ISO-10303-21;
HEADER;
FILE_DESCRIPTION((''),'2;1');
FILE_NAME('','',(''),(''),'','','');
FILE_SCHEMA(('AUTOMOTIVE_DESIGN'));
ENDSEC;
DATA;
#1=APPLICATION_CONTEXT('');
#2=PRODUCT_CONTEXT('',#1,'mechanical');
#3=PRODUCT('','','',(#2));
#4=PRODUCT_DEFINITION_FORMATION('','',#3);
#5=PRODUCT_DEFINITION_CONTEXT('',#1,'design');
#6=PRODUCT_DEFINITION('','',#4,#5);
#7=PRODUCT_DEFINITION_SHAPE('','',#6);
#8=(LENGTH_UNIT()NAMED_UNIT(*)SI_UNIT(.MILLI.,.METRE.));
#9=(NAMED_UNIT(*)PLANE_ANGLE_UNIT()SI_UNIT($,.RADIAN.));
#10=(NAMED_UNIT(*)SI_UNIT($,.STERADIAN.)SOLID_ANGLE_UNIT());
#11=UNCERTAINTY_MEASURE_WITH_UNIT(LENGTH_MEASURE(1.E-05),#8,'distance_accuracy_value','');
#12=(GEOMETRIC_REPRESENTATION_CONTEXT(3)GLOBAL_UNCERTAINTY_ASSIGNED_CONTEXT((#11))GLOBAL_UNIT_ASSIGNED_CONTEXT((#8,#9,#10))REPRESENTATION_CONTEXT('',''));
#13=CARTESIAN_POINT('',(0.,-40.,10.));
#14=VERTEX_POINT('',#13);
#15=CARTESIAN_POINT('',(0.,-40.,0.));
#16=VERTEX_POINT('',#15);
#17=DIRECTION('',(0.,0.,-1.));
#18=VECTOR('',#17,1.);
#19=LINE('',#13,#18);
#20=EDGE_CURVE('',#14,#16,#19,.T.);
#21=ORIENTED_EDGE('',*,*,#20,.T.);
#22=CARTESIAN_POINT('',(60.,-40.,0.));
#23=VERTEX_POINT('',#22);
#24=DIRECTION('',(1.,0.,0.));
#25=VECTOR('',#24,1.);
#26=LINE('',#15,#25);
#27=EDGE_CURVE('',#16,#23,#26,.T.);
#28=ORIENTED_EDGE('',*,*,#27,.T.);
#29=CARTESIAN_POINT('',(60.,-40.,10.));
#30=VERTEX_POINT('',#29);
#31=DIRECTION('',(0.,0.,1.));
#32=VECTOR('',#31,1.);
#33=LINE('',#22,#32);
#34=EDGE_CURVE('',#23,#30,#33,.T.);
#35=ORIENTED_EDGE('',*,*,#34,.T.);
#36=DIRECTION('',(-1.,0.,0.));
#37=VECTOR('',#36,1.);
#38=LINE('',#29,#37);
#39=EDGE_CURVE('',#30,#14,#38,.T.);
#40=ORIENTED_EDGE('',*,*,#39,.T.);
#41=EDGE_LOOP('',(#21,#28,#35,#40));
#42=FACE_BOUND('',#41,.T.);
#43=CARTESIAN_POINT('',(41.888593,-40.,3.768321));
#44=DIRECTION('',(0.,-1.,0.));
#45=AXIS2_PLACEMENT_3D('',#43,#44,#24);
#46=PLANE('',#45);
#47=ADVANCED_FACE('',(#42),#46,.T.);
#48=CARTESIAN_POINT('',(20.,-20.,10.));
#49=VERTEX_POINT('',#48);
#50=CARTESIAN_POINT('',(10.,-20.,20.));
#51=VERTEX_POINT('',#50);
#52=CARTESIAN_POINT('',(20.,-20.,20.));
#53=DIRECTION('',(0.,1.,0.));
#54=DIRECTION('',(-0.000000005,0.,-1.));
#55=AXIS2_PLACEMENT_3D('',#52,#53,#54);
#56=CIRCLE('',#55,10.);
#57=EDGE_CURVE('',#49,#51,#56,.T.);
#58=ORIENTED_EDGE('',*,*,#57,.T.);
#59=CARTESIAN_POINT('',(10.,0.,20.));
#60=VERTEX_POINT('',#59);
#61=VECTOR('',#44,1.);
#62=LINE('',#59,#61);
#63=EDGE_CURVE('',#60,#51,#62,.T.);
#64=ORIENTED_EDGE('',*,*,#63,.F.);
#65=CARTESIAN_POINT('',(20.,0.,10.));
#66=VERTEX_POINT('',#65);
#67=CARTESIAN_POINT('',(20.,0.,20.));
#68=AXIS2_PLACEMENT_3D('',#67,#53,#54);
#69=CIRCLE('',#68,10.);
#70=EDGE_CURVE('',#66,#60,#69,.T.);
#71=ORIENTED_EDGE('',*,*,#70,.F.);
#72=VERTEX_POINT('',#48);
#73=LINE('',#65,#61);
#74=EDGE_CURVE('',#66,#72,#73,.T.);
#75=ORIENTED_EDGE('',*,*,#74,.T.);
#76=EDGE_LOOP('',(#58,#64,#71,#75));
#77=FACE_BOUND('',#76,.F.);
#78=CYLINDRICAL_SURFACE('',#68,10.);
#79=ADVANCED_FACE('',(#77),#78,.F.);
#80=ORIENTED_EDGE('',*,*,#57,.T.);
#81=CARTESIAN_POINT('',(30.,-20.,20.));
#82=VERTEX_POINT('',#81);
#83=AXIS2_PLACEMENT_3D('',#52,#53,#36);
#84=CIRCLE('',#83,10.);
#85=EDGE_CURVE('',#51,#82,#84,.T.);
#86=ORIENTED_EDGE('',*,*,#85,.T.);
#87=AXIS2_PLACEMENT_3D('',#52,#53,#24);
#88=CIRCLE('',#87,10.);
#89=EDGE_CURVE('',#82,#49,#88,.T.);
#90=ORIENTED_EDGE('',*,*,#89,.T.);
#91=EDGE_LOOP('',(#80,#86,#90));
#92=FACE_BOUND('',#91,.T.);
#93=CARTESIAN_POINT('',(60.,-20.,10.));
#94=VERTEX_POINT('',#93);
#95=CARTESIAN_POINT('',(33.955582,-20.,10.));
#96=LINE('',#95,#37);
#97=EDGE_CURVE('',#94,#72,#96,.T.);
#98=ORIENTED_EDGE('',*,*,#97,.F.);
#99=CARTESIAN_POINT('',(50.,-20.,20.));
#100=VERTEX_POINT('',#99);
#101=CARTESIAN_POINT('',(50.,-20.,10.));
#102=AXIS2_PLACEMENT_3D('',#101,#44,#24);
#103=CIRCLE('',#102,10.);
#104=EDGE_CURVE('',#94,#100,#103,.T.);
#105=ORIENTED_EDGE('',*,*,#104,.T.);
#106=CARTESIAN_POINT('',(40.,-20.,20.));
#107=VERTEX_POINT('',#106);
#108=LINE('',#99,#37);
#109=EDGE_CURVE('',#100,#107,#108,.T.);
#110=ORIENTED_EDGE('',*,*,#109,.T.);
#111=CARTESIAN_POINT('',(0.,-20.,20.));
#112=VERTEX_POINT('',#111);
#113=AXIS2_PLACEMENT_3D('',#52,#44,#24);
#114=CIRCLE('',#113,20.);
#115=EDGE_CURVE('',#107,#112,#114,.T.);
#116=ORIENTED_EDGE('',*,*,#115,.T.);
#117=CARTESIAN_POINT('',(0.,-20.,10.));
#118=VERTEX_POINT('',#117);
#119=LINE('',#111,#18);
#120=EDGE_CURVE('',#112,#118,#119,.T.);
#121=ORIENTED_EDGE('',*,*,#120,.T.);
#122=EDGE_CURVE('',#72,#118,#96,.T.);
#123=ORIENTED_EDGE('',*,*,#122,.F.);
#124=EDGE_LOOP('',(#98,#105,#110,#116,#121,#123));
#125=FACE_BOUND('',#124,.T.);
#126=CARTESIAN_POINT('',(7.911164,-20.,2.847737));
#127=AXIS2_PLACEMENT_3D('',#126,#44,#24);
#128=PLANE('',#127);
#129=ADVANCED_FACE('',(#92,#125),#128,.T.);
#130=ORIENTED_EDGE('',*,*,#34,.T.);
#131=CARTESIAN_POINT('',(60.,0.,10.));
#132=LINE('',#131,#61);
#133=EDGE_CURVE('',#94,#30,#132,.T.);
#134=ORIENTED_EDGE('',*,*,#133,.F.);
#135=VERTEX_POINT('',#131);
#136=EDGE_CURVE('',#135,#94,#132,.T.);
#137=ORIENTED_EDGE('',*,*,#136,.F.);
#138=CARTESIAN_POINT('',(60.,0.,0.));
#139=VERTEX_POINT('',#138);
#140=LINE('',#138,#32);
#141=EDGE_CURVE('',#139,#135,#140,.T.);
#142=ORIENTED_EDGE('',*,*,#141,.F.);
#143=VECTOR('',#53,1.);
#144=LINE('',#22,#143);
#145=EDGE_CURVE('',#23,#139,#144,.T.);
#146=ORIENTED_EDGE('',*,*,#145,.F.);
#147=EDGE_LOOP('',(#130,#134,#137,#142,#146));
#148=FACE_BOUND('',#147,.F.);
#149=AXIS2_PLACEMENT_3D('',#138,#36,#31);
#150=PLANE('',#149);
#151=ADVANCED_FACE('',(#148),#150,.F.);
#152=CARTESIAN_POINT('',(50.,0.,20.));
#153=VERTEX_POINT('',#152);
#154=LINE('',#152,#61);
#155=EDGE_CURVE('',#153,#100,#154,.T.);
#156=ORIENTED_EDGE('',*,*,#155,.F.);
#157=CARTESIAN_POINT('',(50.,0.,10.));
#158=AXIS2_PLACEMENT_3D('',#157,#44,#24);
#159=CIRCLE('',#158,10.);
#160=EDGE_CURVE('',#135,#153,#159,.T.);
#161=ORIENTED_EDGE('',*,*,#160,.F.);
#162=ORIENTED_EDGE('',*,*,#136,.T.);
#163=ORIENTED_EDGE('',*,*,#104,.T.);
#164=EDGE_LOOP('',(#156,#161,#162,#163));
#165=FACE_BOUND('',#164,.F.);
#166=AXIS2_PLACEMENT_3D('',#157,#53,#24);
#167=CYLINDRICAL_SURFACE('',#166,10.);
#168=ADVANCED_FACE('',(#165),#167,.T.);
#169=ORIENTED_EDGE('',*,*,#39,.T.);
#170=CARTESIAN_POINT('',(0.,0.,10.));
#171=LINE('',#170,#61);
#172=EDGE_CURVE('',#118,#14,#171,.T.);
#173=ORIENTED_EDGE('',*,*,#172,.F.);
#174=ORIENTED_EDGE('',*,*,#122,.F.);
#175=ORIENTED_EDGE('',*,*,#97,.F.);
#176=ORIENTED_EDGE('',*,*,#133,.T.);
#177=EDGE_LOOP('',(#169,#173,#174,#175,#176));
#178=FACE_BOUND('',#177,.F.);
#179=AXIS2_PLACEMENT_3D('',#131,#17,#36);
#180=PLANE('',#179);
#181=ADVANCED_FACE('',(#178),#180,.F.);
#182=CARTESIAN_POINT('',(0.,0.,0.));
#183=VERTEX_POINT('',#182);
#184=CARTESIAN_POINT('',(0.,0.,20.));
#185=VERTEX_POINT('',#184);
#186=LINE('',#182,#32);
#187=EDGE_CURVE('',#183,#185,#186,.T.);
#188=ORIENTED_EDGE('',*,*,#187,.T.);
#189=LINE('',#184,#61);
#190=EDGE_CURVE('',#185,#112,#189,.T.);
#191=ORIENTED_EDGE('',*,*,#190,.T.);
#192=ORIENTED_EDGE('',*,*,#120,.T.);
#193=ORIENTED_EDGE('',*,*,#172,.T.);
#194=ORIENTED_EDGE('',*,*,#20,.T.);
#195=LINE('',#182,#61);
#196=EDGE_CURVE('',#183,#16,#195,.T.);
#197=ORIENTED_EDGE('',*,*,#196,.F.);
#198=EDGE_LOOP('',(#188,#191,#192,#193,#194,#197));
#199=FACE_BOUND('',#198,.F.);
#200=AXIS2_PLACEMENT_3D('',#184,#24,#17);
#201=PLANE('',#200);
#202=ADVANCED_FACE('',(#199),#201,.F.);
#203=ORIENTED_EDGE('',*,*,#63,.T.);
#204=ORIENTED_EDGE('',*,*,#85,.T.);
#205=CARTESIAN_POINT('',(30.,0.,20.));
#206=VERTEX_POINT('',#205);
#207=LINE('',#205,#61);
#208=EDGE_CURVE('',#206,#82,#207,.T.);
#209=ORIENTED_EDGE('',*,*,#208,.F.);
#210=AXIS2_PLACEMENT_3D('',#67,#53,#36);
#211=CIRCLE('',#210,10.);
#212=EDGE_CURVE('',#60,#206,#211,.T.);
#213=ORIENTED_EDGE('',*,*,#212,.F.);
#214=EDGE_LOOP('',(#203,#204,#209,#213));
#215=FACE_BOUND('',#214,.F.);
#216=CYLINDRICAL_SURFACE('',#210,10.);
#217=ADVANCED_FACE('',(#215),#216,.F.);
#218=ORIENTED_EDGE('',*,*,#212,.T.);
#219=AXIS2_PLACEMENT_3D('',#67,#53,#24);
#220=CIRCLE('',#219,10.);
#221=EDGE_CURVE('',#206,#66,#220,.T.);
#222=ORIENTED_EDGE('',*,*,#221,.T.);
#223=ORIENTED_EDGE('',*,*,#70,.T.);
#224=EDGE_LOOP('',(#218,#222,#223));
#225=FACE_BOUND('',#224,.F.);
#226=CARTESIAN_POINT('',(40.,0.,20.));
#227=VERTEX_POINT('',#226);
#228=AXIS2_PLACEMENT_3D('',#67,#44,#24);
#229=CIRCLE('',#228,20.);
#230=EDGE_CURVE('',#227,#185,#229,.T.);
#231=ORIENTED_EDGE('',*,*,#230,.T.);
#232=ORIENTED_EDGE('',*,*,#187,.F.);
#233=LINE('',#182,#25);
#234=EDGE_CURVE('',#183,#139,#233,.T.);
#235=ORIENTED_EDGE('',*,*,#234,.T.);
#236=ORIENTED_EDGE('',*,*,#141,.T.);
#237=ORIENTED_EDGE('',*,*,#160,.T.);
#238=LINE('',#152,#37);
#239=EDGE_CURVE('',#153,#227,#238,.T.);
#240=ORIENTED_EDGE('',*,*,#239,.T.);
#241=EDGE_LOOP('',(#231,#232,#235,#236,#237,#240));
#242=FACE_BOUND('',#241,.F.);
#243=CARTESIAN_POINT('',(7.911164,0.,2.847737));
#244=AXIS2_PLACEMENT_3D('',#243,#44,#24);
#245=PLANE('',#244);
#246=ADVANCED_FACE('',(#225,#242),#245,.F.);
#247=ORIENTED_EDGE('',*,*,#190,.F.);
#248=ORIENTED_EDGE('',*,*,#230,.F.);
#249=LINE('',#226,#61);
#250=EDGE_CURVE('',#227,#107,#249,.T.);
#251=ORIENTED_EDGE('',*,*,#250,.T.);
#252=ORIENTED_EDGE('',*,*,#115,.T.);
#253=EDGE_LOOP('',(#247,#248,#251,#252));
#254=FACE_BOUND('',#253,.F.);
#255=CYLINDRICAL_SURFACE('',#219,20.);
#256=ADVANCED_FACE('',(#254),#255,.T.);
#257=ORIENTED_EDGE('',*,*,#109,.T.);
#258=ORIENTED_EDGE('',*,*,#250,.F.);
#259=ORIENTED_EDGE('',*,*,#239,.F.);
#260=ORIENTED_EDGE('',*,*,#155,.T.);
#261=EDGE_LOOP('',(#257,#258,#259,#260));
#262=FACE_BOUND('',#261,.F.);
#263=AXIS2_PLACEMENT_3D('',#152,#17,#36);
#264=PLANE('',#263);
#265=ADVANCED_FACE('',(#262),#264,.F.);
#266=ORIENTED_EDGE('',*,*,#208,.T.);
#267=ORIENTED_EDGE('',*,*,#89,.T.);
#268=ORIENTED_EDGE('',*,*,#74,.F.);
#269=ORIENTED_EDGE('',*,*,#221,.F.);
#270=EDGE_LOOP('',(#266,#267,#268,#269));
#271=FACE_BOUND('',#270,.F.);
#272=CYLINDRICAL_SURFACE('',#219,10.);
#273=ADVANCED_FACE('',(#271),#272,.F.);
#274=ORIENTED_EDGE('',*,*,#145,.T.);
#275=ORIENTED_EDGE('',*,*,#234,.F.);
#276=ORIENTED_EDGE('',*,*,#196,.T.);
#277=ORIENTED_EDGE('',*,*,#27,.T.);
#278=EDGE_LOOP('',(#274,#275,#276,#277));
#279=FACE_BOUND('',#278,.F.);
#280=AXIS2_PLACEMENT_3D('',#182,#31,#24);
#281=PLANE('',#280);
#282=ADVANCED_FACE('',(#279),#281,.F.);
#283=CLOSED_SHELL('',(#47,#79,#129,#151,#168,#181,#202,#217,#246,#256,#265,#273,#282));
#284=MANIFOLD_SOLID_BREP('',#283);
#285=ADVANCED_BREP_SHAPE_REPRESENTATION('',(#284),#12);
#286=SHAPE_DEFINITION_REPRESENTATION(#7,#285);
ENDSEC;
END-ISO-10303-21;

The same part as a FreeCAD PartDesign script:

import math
import FreeCAD as App
import Part
import Sketcher
from FreeCAD import Vector


def add_polygon(sketch, points):
    """Adds a closed chain of lines whose ends are joined by coincident constraints."""
    first, n = sketch.GeometryCount, len(points)
    for a, b in zip(points, points[1:] + points[:1]):
        sketch.addGeometry(Part.LineSegment(App.Vector(*a, 0), App.Vector(*b, 0)), False)
    for i in range(n):
        sketch.addConstraint(Sketcher.Constraint("Coincident", first + i, 2, first + (i + 1) % n, 1))

doc = App.newDocument("Part")
params = doc.addObject("Spreadsheet::Sheet", "Params")
for row, (alias, value) in enumerate([
    ("sketch1_width", "60 mm"),
    ("sketch1_height", "10 mm"),
    ("pad1_length", "40 mm"),
    ("sketch2_radius", "20 mm"),
    ("sketch2_radius2", "10 mm"),
    ("sketch2_width", "10 mm"),
    ("pad2_length", "20 mm"),
], start=1):
    params.set(f"A{row}", alias)
    params.set(f"B{row}", "=" + value)
    params.setAlias(f"B{row}", alias)

body = doc.addObject("PartDesign::Body", "Body")

sketch1 = body.newObject("Sketcher::SketchObject", "Sketch")
sketch1.AttachmentSupport = (doc.getObject("XZ_Plane"), [""])
sketch1.MapMode = "FlatFace"
add_polygon(sketch1, [(60, 0), (60, 10), (0, 10), (0, 0)])
sketch1.addConstraint([
    Sketcher.Constraint("Vertical", 0),
    Sketcher.Constraint("Horizontal", 1),
    Sketcher.Constraint("Vertical", 2),
    Sketcher.Constraint("Horizontal", 3),
    Sketcher.Constraint("Coincident", 2, 2, -1, 1),
    Sketcher.Constraint("DistanceX", 1, 2, 1, 1, 60.0),
    Sketcher.Constraint("DistanceY", 0, 1, 0, 2, 10.0),
])
sketch1.setExpression("Constraints[9]", "Params.sketch1_width")
sketch1.setExpression("Constraints[10]", "Params.sketch1_height")
pad1 = body.newObject("PartDesign::Pad", "Pad")
pad1.Profile = sketch1
pad1.setExpression("Length", "Params.pad1_length")

sketch2 = body.newObject("Sketcher::SketchObject", "Sketch001")
sketch2.AttachmentSupport = (doc.getObject("XZ_Plane"), [""])
sketch2.MapMode = "FlatFace"
sketch2.addGeometry([
    Part.LineSegment(Vector(50, 20, 0), Vector(40, 20, 0)),
    Part.ArcOfCircle(Part.Circle(Vector(20, 20, 0), Vector(0, 0, 1), 20), math.radians(0), math.radians(180)),
    Part.LineSegment(Vector(0, 20, 0), Vector(0, 0, 0)),
    Part.LineSegment(Vector(0, 0, 0), Vector(60, 0, 0)),
    Part.LineSegment(Vector(60, 0, 0), Vector(60, 10, 0)),
    Part.ArcOfCircle(Part.Circle(Vector(50, 10, 0), Vector(0, 0, 1), 10), math.radians(0), math.radians(90)),
    Part.ArcOfCircle(Part.Circle(Vector(20, 20, 0), Vector(0, 0, 1), 10), math.radians(0), math.radians(180)),
    Part.ArcOfCircle(Part.Circle(Vector(20, 20, 0), Vector(0, 0, 1), 10), math.radians(-90), math.radians(0)),
    Part.ArcOfCircle(Part.Circle(Vector(20, 20, 0), Vector(0, 0, 1), 10), math.radians(180), math.radians(270)),
], False)
sketch2.addConstraint([
    Sketcher.Constraint("Coincident", 0, 2, 1, 1),
    Sketcher.Constraint("Tangent", 1, 2, 2, 1),
    Sketcher.Constraint("Coincident", 2, 2, 3, 1),
    Sketcher.Constraint("Coincident", 3, 2, 4, 1),
    Sketcher.Constraint("Tangent", 4, 2, 5, 1),
    Sketcher.Constraint("Tangent", 5, 2, 0, 1),
    Sketcher.Constraint("Tangent", 6, 1, 7, 2),
    Sketcher.Constraint("Tangent", 7, 1, 8, 2),
    Sketcher.Constraint("Tangent", 8, 1, 6, 2),
    Sketcher.Constraint("Horizontal", 0),
    Sketcher.Constraint("Vertical", 2),
    Sketcher.Constraint("Horizontal", 3),
    Sketcher.Constraint("Vertical", 4),
    Sketcher.Constraint("Coincident", 2, 2, -1, 1),
    Sketcher.Constraint("Coincident", 6, 3, 1, 3),
    Sketcher.Constraint("Equal", 5, 6),
    Sketcher.Constraint("Horizontal", 8, 3, 0, 2),
    Sketcher.Constraint("Horizontal", 5, 2, 6, 1),
    Sketcher.Constraint("Horizontal", 6, 1, 8, 1),
    Sketcher.Constraint("Vertical", 8, 3, 7, 1),
    Sketcher.Constraint("Equal", 0, 4),
    Sketcher.Constraint("Radius", 1, 20.0),
    Sketcher.Constraint("Radius", 5, 10.0),
    Sketcher.Constraint("DistanceX", 0, 2, 0, 1, 10.0),
])
sketch2.setExpression("Constraints[21]", "Params.sketch2_radius")
sketch2.setExpression("Constraints[22]", "Params.sketch2_radius2")
sketch2.setExpression("Constraints[23]", "Params.sketch2_width")
pad2 = body.newObject("PartDesign::Pad", "Pad001")
pad2.Profile = sketch2
pad2.setExpression("Length", "Params.pad2_length")

doc.recompute()
